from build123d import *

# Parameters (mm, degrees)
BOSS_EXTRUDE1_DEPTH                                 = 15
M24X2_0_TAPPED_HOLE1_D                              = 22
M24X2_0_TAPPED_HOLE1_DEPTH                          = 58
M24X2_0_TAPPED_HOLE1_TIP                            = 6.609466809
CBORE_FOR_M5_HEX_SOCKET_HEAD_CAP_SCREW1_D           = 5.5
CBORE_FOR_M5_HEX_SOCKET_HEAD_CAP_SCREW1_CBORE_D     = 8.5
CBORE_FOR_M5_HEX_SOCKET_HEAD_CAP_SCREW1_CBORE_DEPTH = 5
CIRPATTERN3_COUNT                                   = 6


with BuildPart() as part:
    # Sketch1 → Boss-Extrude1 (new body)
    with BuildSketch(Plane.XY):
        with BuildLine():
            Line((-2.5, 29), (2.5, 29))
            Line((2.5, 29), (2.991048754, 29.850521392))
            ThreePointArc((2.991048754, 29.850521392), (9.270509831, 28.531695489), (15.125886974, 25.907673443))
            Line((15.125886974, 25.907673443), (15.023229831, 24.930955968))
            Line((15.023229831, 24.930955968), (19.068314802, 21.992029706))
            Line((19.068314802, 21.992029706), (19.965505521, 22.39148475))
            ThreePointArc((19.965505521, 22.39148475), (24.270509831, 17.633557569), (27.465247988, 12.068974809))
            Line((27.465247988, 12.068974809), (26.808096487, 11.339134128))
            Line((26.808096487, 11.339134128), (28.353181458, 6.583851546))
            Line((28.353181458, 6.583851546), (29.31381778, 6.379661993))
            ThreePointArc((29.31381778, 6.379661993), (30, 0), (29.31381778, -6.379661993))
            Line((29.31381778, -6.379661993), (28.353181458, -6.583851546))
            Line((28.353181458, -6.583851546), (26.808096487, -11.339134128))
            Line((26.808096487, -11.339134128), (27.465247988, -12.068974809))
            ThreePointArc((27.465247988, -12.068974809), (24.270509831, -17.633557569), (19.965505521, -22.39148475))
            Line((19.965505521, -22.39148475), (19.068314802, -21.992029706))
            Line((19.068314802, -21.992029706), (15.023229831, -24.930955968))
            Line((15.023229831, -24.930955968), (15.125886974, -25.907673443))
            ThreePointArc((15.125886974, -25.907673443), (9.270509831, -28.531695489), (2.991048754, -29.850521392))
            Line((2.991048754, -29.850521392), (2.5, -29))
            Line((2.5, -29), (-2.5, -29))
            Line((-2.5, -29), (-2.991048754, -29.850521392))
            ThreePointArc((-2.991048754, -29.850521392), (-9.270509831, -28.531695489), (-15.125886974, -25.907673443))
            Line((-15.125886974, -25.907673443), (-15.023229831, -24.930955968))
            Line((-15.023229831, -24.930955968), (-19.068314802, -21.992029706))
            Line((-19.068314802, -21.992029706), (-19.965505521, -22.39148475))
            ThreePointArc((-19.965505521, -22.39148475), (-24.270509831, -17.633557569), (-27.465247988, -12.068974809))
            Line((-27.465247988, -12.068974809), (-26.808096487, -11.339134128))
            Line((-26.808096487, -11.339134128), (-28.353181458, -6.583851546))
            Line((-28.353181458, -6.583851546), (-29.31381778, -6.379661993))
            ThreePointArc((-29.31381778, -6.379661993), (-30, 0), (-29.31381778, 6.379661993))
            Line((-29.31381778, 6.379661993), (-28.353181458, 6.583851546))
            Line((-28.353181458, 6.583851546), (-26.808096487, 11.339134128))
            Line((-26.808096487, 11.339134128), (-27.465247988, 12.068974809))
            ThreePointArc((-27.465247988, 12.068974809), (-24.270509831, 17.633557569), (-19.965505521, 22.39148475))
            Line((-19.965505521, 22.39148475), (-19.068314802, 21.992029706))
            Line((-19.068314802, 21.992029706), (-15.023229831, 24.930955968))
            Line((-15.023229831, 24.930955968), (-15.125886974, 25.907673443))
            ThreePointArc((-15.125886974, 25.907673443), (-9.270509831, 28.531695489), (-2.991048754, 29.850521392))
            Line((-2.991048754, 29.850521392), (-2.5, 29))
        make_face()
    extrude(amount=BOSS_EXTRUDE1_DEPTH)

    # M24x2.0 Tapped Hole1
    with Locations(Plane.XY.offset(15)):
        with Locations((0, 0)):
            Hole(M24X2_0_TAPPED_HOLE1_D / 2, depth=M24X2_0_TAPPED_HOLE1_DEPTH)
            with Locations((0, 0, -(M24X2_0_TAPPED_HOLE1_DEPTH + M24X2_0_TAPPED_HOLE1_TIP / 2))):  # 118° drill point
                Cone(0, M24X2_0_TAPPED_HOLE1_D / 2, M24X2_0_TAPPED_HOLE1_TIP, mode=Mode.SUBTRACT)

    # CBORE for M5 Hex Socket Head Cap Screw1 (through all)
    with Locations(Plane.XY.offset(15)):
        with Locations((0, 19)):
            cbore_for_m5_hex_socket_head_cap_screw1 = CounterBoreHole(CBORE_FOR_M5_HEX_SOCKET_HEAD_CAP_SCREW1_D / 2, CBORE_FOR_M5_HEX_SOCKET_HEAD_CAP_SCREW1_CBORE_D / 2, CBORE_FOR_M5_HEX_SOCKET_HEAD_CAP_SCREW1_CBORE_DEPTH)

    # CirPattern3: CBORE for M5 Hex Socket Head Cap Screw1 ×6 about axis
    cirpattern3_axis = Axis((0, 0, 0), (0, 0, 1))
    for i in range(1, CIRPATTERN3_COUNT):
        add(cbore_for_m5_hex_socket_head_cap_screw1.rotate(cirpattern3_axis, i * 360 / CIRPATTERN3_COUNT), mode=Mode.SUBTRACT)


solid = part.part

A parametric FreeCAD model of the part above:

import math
import FreeCAD as App
import Part
import Sketcher

V = App.Vector
Q = App.Units.Quantity

doc = App.newDocument("Part")
body = doc.addObject("PartDesign::Body", "Body")

# Sketch on XY plane
sketch1 = body.newObject("Sketcher::SketchObject", "Sketch")
sketch1.AttachmentSupport = (doc.getObject("XY_Plane"), [""])
sketch1.MapMode = "FlatFace"
sketch1.addGeometry([
    Part.LineSegment(V(2.5, 29, 0), V(-2.5, 29, 0)),  # 0
    Part.LineSegment(V(-2.5, 29, 0), V(-2.991049, 29.850521, 0)),  # 1
    Part.ArcOfCircle(Part.Circle(V(0, 0, 0), V(0, 0, 1), 30), math.radians(95.721989), math.radians(120.278011)),  # 2
    Part.LineSegment(V(-15.125887, 25.907673, 0), V(-15.02323, 24.930956, 0)),  # 3
    Part.LineSegment(V(-15.02323, 24.930956, 0), V(-19.068315, 21.99203, 0)),  # 4
    Part.LineSegment(V(-19.068315, 21.99203, 0), V(-19.965506, 22.391485, 0)),  # 5
    Part.ArcOfCircle(Part.Circle(V(0, 0, 0), V(0, 0, 1), 30), math.radians(131.721989), math.radians(156.278011)),  # 6
    Part.LineSegment(V(-27.465248, 12.068975, 0), V(-26.808096, 11.339134, 0)),  # 7
    Part.LineSegment(V(-26.808096, 11.339134, 0), V(-28.353181, 6.583852, 0)),  # 8
    Part.LineSegment(V(-28.353181, 6.583852, 0), V(-29.313818, 6.379662, 0)),  # 9
    Part.ArcOfCircle(Part.Circle(V(0, 0, 0), V(0, 0, 1), 30), math.radians(167.721989), math.radians(192.278011)),  # 10
    Part.LineSegment(V(-29.313818, -6.379662, 0), V(-28.353181, -6.583852, 0)),  # 11
    Part.LineSegment(V(-28.353181, -6.583852, 0), V(-26.808096, -11.339134, 0)),  # 12
    Part.LineSegment(V(-26.808096, -11.339134, 0), V(-27.465248, -12.068975, 0)),  # 13
    Part.ArcOfCircle(Part.Circle(V(0, 0, 0), V(0, 0, 1), 30), math.radians(-156.278011), math.radians(-131.721989)),  # 14
    Part.LineSegment(V(-19.965506, -22.391485, 0), V(-19.068315, -21.99203, 0)),  # 15
    Part.LineSegment(V(-19.068315, -21.99203, 0), V(-15.02323, -24.930956, 0)),  # 16
    Part.LineSegment(V(-15.02323, -24.930956, 0), V(-15.125887, -25.907673, 0)),  # 17
    Part.ArcOfCircle(Part.Circle(V(0, 0, 0), V(0, 0, 1), 30), math.radians(-120.278011), math.radians(-95.721989)),  # 18
    Part.LineSegment(V(-2.991049, -29.850521, 0), V(-2.5, -29, 0)),  # 19
    Part.LineSegment(V(-2.5, -29, 0), V(2.5, -29, 0)),  # 20
    Part.LineSegment(V(2.5, -29, 0), V(2.991049, -29.850521, 0)),  # 21
    Part.ArcOfCircle(Part.Circle(V(0, 0, 0), V(0, 0, 1), 30), math.radians(-84.278011), math.radians(-59.721989)),  # 22
    Part.LineSegment(V(15.125887, -25.907673, 0), V(15.02323, -24.930956, 0)),  # 23
    Part.LineSegment(V(15.02323, -24.930956, 0), V(19.068315, -21.99203, 0)),  # 24
    Part.LineSegment(V(19.068315, -21.99203, 0), V(19.965506, -22.391485, 0)),  # 25
    Part.ArcOfCircle(Part.Circle(V(0, 0, 0), V(0, 0, 1), 30), math.radians(-48.278011), math.radians(-23.721989)),  # 26
    Part.LineSegment(V(27.465248, -12.068975, 0), V(26.808096, -11.339134, 0)),  # 27
    Part.LineSegment(V(26.808096, -11.339134, 0), V(28.353181, -6.583852, 0)),  # 28
    Part.LineSegment(V(28.353181, -6.583852, 0), V(29.313818, -6.379662, 0)),  # 29
    Part.ArcOfCircle(Part.Circle(V(0, 0, 0), V(0, 0, 1), 30), math.radians(-12.278011), math.radians(12.278011)),  # 30
    Part.LineSegment(V(29.313818, 6.379662, 0), V(28.353181, 6.583852, 0)),  # 31
    Part.LineSegment(V(28.353181, 6.583852, 0), V(26.808096, 11.339134, 0)),  # 32
    Part.LineSegment(V(26.808096, 11.339134, 0), V(27.465248, 12.068975, 0)),  # 33
    Part.ArcOfCircle(Part.Circle(V(0, 0, 0), V(0, 0, 1), 30), math.radians(23.721989), math.radians(48.278011)),  # 34
    Part.LineSegment(V(19.965506, 22.391485, 0), V(19.068315, 21.99203, 0)),  # 35
    Part.LineSegment(V(19.068315, 21.99203, 0), V(15.02323, 24.930956, 0)),  # 36
    Part.LineSegment(V(15.02323, 24.930956, 0), V(15.125887, 25.907673, 0)),  # 37
    Part.ArcOfCircle(Part.Circle(V(0, 0, 0), V(0, 0, 1), 30), math.radians(59.721989), math.radians(84.278011)),  # 38
    Part.LineSegment(V(2.991049, 29.850521, 0), V(2.5, 29, 0)),  # 39
], False)
sketch1.addConstraint([
    Sketcher.Constraint("Coincident", 0, 2, 1, 1),
    Sketcher.Constraint("Coincident", 1, 2, 2, 1),
    Sketcher.Constraint("Coincident", 2, 2, 3, 1),
    Sketcher.Constraint("Coincident", 3, 2, 4, 1),
    Sketcher.Constraint("Coincident", 4, 2, 5, 1),
    Sketcher.Constraint("Coincident", 5, 2, 6, 1),
    Sketcher.Constraint("Coincident", 6, 2, 7, 1),
    Sketcher.Constraint("Coincident", 7, 2, 8, 1),
    Sketcher.Constraint("Coincident", 8, 2, 9, 1),
    Sketcher.Constraint("Coincident", 9, 2, 10, 1),
    Sketcher.Constraint("Coincident", 10, 2, 11, 1),
    Sketcher.Constraint("Coincident", 11, 2, 12, 1),
    Sketcher.Constraint("Coincident", 12, 2, 13, 1),
    Sketcher.Constraint("Coincident", 13, 2, 14, 1),
    Sketcher.Constraint("Coincident", 14, 2, 15, 1),
    Sketcher.Constraint("Coincident", 15, 2, 16, 1),
    Sketcher.Constraint("Coincident", 16, 2, 17, 1),
    Sketcher.Constraint("Coincident", 17, 2, 18, 1),
    Sketcher.Constraint("Coincident", 18, 2, 19, 1),
    Sketcher.Constraint("Coincident", 19, 2, 20, 1),
    Sketcher.Constraint("Coincident", 20, 2, 21, 1),
    Sketcher.Constraint("Coincident", 21, 2, 22, 1),
    Sketcher.Constraint("Coincident", 22, 2, 23, 1),
    Sketcher.Constraint("Coincident", 23, 2, 24, 1),
    Sketcher.Constraint("Coincident", 24, 2, 25, 1),
    Sketcher.Constraint("Coincident", 25, 2, 26, 1),
    Sketcher.Constraint("Coincident", 26, 2, 27, 1),
    Sketcher.Constraint("Coincident", 27, 2, 28, 1),
    Sketcher.Constraint("Coincident", 28, 2, 29, 1),
    Sketcher.Constraint("Coincident", 29, 2, 30, 1),
    Sketcher.Constraint("Coincident", 30, 2, 31, 1),
    Sketcher.Constraint("Coincident", 31, 2, 32, 1),
    Sketcher.Constraint("Coincident", 32, 2, 33, 1),
    Sketcher.Constraint("Coincident", 33, 2, 34, 1),
    Sketcher.Constraint("Coincident", 34, 2, 35, 1),
    Sketcher.Constraint("Coincident", 35, 2, 36, 1),
    Sketcher.Constraint("Coincident", 36, 2, 37, 1),
    Sketcher.Constraint("Coincident", 37, 2, 38, 1),
    Sketcher.Constraint("Coincident", 38, 2, 39, 1),
    Sketcher.Constraint("Coincident", 39, 2, 0, 1),
    Sketcher.Constraint("Horizontal", 0),
    Sketcher.Constraint("Horizontal", 20),
    Sketcher.Constraint("Coincident", 2, 3, -1, 1),
    Sketcher.Constraint("Coincident", 6, 3, -1, 1),
    Sketcher.Constraint("Coincident", 10, 3, -1, 1),
    Sketcher.Constraint("Coincident", 14, 3, -1, 1),
    Sketcher.Constraint("Coincident", 18, 3, -1, 1),
    Sketcher.Constraint("Coincident", 22, 3, -1, 1),
    Sketcher.Constraint("Coincident", 26, 3, -1, 1),
    Sketcher.Constraint("Coincident", 30, 3, -1, 1),
    Sketcher.Constraint("Coincident", 34, 3, -1, 1),
    Sketcher.Constraint("Coincident", 38, 3, -1, 1),
    Sketcher.Constraint("Equal", 2, 6),
    Sketcher.Constraint("Equal", 6, 10),
    Sketcher.Constraint("Equal", 10, 14),
    Sketcher.Constraint("Equal", 14, 18),
    Sketcher.Constraint("Equal", 18, 22),
    Sketcher.Constraint("Equal", 22, 26),
    Sketcher.Constraint("Equal", 26, 30),
    Sketcher.Constraint("Equal", 30, 34),
    Sketcher.Constraint("Equal", 34, 38),
    Sketcher.Constraint("Symmetric", 0, 2, 20, 2, -1, 1),
    Sketcher.Constraint("Symmetric", 3, 2, 23, 2, -1, 1),
    Sketcher.Constraint("Symmetric", 4, 2, 24, 2, -1, 1),
    Sketcher.Constraint("Symmetric", 7, 2, 27, 2, -1, 1),
    Sketcher.Constraint("Symmetric", 8, 2, 28, 2, -1, 1),
    Sketcher.Constraint("Symmetric", 11, 2, 31, 2, -1, 1),
    Sketcher.Constraint("Symmetric", 12, 2, 32, 2, -1, 1),
    Sketcher.Constraint("Symmetric", 15, 2, 35, 2, -1, 1),
    Sketcher.Constraint("Symmetric", 16, 2, 36, 2, -1, 1),
    Sketcher.Constraint("Symmetric", 16, 2, 23, 2, -2),
    Sketcher.Constraint("Symmetric", 15, 2, 24, 2, -2),
    Sketcher.Constraint("Symmetric", 12, 2, 27, 2, -2),
    Sketcher.Constraint("Symmetric", 11, 2, 28, 2, -2),
    Sketcher.Constraint("Parallel", 1, 21),
    Sketcher.Constraint("Parallel", 3, 23),
    Sketcher.Constraint("Parallel", 5, 25),
    Sketcher.Constraint("Parallel", 7, 27),
    Sketcher.Constraint("Parallel", 9, 29),
    Sketcher.Constraint("Parallel", 11, 31),
    Sketcher.Constraint("Parallel", 13, 33),
    Sketcher.Constraint("Parallel", 15, 35),
    Sketcher.Constraint("Parallel", 17, 37),
    Sketcher.Constraint("Parallel", 19, 39),
    Sketcher.Constraint("Horizontal", 18, 2, 21, 2),
    Sketcher.Constraint("Horizontal", 17, 2, 22, 2),
    Sketcher.Constraint("Horizontal", 14, 2, 25, 2),
    Sketcher.Constraint("Horizontal", 13, 2, 26, 2),
    Sketcher.Constraint("Horizontal", 10, 2, 29, 2),
    Sketcher.Constraint("Horizontal", 1, 2, 38, 2),
    Sketcher.Constraint("Vertical", 0, 2, 19, 2),
    Sketcher.Constraint("Equal", 1, 3),
    Sketcher.Constraint("Equal", 3, 5),
    Sketcher.Constraint("Equal", 5, 7),
    Sketcher.Constraint("Equal", 4, 8),
    Sketcher.Constraint("Equal", 7, 9),
    Sketcher.Constraint("Radius", 2, 30.0),
    Sketcher.Constraint("DistanceX", 0, 2, 0, 1, 5.0),
    Sketcher.Constraint("Angle", 1, Q("120 deg")),
    Sketcher.Constraint("Angle", 3, Q("-84 deg")),
    Sketcher.Constraint("Angle", 4, Q("-144 deg")),
    Sketcher.Constraint("Angle", 5, Q("156 deg")),
    Sketcher.Constraint("Angle", 7, Q("-48 deg")),
    Sketcher.Constraint("Angle", 8, Q("-108 deg")),
    Sketcher.Constraint("Angle", 9, Q("-168 deg")),
    Sketcher.Constraint("Distance", 4, 5.0),
    Sketcher.Constraint("DistanceY", -1, 1, 0, 2, 29.0),
])
pad1 = body.newObject("PartDesign::Pad", "Pad")
pad1.Profile = sketch1
pad1.Length = 15

# Sketch on XY plane
sketch2 = body.newObject("Sketcher::SketchObject", "Sketch001")
sketch2.AttachmentSupport = (doc.getObject("XY_Plane"), [""])
sketch2.MapMode = "FlatFace"
sketch2.AttachmentOffset = App.Placement(V(0, 0, 15), App.Rotation())
sketch2.addGeometry(Part.Circle(V(0, 0, 0), V(0, 0, 1), 11), False)
sketch2.addConstraint([
    Sketcher.Constraint("Coincident", 0, 3, -1, 1),
    Sketcher.Constraint("Diameter", 0, 22.0),
])
doc.recompute()
hole = body.newObject("PartDesign::Hole", "Hole")
hole.Profile = sketch2
hole.ThreadType = "None"
hole.Diameter = 22
hole.DepthType = "Dimension"
hole.Depth = 58
hole.DrillPoint = "Angled"
hole.DrillPointAngle = 118

# Sketch on XY plane
sketch3 = body.newObject("Sketcher::SketchObject", "Sketch002")
sketch3.AttachmentSupport = (doc.getObject("XY_Plane"), [""])
sketch3.MapMode = "FlatFace"
sketch3.AttachmentOffset = App.Placement(V(0, 0, 15), App.Rotation())
sketch3.addGeometry(Part.Circle(V(0, 19, 0), V(0, 0, 1), 2.75), False)
sketch3.addConstraint([
    Sketcher.Constraint("PointOnObject", 0, 3, -2),
    Sketcher.Constraint("Diameter", 0, 5.5),
    Sketcher.Constraint("DistanceY", -1, 1, 0, 3, 19.0),
])
doc.recompute()
hole2 = body.newObject("PartDesign::Hole", "Hole001")
hole2.Profile = sketch3
hole2.ThreadType = "None"
hole2.Diameter = 5.5
hole2.DepthType = "ThroughAll"
hole2.HoleCutType = "Counterbore"
hole2.HoleCutDiameter = 8.5
hole2.HoleCutDepth = 5
doc.recompute()

polarpattern = body.newObject("PartDesign::PolarPattern", "PolarPattern")
polarpattern.Originals = [hole2]
polarpattern.Axis = (doc.getObject("Z_Axis"), [""])
polarpattern.Angle = 360
polarpattern.Occurrences = 6
body.Tip = polarpattern

doc.recompute()
